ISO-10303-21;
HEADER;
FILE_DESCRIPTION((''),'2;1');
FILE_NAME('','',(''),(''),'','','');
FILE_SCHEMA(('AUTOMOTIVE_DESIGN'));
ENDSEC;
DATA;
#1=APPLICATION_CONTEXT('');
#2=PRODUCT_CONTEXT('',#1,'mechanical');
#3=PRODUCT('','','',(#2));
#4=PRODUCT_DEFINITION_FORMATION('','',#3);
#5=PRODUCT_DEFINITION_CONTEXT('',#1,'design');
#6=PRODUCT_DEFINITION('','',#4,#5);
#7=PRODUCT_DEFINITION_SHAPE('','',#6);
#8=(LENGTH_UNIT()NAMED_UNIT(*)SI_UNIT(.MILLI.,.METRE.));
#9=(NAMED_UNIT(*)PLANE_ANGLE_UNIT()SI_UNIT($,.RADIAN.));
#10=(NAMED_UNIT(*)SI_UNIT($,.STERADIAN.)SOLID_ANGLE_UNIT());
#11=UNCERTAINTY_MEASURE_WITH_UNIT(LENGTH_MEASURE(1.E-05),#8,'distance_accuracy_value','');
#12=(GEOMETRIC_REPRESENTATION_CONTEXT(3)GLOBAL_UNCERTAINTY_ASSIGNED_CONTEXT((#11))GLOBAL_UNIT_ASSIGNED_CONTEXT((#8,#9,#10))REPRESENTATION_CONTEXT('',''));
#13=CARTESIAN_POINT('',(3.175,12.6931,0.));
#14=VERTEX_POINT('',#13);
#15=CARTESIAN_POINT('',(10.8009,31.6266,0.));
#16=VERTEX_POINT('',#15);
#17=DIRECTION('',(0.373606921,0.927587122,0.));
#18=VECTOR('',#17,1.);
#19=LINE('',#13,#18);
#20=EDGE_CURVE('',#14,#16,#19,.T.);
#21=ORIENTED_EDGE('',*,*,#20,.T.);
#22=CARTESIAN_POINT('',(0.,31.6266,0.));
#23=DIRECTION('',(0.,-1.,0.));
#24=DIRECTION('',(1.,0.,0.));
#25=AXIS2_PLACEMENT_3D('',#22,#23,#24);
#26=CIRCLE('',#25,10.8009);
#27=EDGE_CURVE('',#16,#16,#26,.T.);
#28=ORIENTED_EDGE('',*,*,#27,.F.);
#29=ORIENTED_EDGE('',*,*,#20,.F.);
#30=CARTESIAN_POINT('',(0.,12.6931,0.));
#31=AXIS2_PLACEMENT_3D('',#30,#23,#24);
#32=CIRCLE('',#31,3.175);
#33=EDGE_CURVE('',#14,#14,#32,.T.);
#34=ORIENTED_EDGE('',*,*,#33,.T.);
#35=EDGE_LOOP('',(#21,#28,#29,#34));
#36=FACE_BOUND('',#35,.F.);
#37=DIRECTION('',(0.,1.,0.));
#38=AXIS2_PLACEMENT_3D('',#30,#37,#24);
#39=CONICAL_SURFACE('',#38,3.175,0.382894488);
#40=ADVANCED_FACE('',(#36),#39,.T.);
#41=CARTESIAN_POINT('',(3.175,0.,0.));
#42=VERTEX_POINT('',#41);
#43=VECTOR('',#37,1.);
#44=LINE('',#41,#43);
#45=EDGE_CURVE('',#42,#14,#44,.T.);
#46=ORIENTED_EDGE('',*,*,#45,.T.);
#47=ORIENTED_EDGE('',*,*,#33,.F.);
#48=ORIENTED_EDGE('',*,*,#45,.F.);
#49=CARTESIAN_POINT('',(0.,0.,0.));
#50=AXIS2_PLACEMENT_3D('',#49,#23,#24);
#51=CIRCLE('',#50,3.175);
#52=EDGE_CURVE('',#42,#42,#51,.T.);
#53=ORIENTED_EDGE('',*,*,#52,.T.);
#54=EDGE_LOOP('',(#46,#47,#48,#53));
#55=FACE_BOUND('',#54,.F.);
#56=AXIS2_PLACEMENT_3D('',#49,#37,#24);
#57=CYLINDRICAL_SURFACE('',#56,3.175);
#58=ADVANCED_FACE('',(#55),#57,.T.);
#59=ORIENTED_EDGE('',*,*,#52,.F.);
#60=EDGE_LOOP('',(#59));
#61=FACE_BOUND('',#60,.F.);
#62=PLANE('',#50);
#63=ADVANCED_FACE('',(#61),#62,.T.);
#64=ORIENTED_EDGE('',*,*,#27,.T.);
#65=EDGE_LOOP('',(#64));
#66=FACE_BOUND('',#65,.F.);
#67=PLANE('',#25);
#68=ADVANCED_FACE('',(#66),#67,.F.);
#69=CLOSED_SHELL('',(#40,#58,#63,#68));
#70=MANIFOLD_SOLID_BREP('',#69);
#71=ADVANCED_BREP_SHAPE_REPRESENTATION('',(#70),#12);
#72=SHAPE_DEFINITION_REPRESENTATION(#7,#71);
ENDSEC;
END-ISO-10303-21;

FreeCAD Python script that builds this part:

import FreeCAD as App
import Part
import Sketcher
Q = App.Units.Quantity

doc = App.newDocument("Part")
params = doc.addObject("Spreadsheet::Sheet", "Params")
for row, (alias, value) in enumerate([
    ("sketch1_width", "0.125 in"),
    ("revolution_angle", "360 deg"),
], start=1):
    params.set(f"A{row}", alias)
    params.set(f"B{row}", "=" + value)
    params.setAlias(f"B{row}", alias)

body = doc.addObject("PartDesign::Body", "Body")

# Sketch on XY plane
sketch1 = doc.addObject("Sketcher::SketchObject", "Sketch")
body.addObject(sketch1)
sketch1.AttachmentSupport = (doc.XY_Plane, [""])
sketch1.MapMode = "FlatFace"
sketch1.addGeometry(Part.LineSegment(App.Vector(0, 31.6266, 0), App.Vector(0, 0, 0)), False)
sketch1.addGeometry(Part.LineSegment(App.Vector(0, 0, 0), App.Vector(3.175, 0, 0)), False)
sketch1.addGeometry(Part.LineSegment(App.Vector(3.175, 0, 0), App.Vector(3.175, 12.6931, 0)), False)
sketch1.addGeometry(Part.LineSegment(App.Vector(3.175, 12.6931, 0), App.Vector(10.8009, 31.6266, 0)), False)
sketch1.addGeometry(Part.LineSegment(App.Vector(10.8009, 31.6266, 0), App.Vector(0, 31.6266, 0)), False)
sketch1.addConstraint(Sketcher.Constraint("Coincident", 0, 2, 1, 1))
sketch1.addConstraint(Sketcher.Constraint("Coincident", 1, 2, 2, 1))
sketch1.addConstraint(Sketcher.Constraint("Coincident", 2, 2, 3, 1))
sketch1.addConstraint(Sketcher.Constraint("Coincident", 3, 2, 4, 1))
sketch1.addConstraint(Sketcher.Constraint("Coincident", 4, 2, 0, 1))
sketch1.addConstraint(Sketcher.Constraint("Vertical", 0))
sketch1.addConstraint(Sketcher.Constraint("Horizontal", 1))
sketch1.addConstraint(Sketcher.Constraint("Vertical", 2))
sketch1.addConstraint(Sketcher.Constraint("Horizontal", 4))
sketch1.addConstraint(Sketcher.Constraint("Coincident", 0, 2, -1, 1))
sketch1.addConstraint(Sketcher.Constraint("DistanceX", 1, 1, 1, 2, Q("0.125 in")))
sketch1.addConstraint(Sketcher.Constraint("Distance", 3, Q("0.8036 in")))
sketch1.addConstraint(Sketcher.Constraint("DistanceX", 4, 2, 4, 1, 10.801))
sketch1.addConstraint(Sketcher.Constraint("DistanceY", 0, 2, 0, 1, 31.6266))
sketch1.setExpression("Constraints[10]", "Params.sketch1_width")
revolution = doc.addObject("PartDesign::Revolution", "Revolution")
body.addObject(revolution)
revolution.Profile = sketch1
revolution.ReferenceAxis = (sketch1, ["V_Axis"])
revolution.setExpression("Angle", "Params.revolution_angle")

doc.recompute()
